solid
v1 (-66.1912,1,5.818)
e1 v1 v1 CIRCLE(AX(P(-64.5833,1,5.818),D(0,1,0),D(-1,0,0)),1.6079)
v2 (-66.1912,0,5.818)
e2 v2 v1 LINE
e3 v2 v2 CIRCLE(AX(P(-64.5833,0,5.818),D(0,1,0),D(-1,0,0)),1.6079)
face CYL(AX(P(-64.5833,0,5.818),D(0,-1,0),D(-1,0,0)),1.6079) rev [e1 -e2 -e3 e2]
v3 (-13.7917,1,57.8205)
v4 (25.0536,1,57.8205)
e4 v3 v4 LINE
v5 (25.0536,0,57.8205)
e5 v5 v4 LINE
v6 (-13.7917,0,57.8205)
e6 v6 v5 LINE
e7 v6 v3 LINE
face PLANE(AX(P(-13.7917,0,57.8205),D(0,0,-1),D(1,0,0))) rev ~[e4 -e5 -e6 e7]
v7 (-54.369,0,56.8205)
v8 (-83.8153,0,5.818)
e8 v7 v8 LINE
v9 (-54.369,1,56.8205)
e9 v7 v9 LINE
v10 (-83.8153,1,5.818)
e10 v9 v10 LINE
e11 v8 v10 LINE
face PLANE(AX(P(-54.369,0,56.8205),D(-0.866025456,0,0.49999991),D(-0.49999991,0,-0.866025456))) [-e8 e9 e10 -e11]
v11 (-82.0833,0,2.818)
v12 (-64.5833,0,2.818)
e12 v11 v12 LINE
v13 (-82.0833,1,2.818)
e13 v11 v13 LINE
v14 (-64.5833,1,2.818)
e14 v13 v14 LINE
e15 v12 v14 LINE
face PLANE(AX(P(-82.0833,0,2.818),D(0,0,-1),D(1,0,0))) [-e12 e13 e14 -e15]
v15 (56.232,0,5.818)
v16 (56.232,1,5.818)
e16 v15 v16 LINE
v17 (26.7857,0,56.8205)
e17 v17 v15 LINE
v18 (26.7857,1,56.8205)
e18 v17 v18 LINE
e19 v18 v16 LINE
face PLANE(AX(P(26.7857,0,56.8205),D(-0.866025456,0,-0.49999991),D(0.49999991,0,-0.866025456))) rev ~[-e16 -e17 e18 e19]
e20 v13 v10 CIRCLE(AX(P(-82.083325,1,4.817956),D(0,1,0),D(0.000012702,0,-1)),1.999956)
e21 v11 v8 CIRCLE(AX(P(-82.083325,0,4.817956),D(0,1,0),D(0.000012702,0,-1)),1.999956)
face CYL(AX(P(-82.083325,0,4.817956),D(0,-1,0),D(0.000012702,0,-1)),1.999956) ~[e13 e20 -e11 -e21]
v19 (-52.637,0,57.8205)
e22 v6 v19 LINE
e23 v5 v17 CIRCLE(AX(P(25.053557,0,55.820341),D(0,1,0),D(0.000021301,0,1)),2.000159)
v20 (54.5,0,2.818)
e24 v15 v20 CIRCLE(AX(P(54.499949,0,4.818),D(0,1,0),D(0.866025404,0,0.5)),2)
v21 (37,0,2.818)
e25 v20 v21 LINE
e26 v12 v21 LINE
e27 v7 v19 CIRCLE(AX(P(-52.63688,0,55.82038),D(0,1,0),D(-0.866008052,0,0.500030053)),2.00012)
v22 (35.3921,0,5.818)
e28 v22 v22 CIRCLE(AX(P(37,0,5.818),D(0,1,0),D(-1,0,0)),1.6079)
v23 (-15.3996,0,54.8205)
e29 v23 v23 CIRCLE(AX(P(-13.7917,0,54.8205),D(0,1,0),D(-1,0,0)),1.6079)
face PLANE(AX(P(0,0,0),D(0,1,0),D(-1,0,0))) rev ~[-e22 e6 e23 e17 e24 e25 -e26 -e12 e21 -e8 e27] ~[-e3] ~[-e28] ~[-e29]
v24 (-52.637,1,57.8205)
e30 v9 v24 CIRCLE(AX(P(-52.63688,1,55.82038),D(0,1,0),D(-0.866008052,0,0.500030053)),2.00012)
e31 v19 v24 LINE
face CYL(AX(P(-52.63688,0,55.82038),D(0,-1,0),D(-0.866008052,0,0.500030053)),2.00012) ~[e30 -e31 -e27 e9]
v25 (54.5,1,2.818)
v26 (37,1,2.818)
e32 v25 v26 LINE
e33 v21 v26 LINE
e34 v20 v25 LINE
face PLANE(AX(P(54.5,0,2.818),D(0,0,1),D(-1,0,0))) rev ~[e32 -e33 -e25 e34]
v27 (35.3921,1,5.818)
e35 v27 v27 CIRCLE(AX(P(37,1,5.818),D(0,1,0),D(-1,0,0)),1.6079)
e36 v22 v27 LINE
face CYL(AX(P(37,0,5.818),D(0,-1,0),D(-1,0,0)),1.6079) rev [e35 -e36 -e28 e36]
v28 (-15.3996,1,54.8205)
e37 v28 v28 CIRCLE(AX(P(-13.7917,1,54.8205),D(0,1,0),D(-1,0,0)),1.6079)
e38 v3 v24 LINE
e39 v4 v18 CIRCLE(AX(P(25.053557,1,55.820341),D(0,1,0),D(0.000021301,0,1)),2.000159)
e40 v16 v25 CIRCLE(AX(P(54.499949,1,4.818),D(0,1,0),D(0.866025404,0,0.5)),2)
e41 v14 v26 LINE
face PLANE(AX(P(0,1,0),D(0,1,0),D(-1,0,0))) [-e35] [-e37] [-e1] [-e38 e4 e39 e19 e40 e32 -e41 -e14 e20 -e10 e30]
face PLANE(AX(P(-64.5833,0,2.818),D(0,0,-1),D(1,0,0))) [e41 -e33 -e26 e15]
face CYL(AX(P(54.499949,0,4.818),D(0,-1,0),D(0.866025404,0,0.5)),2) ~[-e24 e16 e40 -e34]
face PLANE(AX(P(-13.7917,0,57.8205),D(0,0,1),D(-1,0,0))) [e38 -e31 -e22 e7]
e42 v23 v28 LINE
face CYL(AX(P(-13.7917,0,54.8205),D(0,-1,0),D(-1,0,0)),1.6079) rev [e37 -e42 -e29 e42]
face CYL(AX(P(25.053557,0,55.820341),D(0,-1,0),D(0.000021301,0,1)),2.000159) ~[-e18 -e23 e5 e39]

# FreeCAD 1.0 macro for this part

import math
import FreeCAD as App
import Part
import Sketcher

V = App.Vector
Q = App.Units.Quantity

doc = App.newDocument("Part")
body = doc.addObject("PartDesign::Body", "Body")

# Sketch on XZ plane
sketch1 = doc.addObject("Sketcher::SketchObject", "Sketch")
body.addObject(sketch1)
sketch1.AttachmentSupport = (doc.XZ_Plane, [""])
sketch1.MapMode = "FlatFace"
sketch1.addGeometry([
    Part.LineSegment(V(-52.637, 57.8205, 0), V(25.0536, 57.8205, 0)),  # 0
    Part.ArcOfCircle(Part.Circle(V(25.0536, 55.8205, 0), V(0, 0, 1), 2), math.radians(29.999295), math.radians(90)),  # 1
    Part.LineSegment(V(26.7857, 56.8205, 0), V(56.232, 5.818, 0)),  # 2
    Part.ArcOfCircle(Part.Circle(V(54.5, 4.818, 0), V(0, 0, 1), 1.999956), math.radians(-90), math.radians(30.000728)),  # 3
    Part.LineSegment(V(54.5, 2.818, 0), V(-82.0833, 2.818, 0)),  # 4
    Part.ArcOfCircle(Part.Circle(V(-82.0833, 4.818, 0), V(0, 0, 1), 2), math.radians(149.999272), math.radians(270)),  # 5
    Part.LineSegment(V(-83.8153, 5.818, 0), V(-54.369, 56.8205, 0)),  # 6
    Part.ArcOfCircle(Part.Circle(V(-52.637, 55.8205, 0), V(0, 0, 1), 1.999956), math.radians(90), math.radians(149.999272)),  # 7
    Part.Circle(V(37, 5.818, 0), V(0, 0, 1), 1.6079),  # 8
    Part.Circle(V(-64.5833, 5.818, 0), V(0, 0, 1), 1.6079),  # 9
    Part.Circle(V(-13.7917, 54.8205, 0), V(0, 0, 1), 1.6079),  # 10
], False)
sketch1.addConstraint([
    Sketcher.Constraint("Tangent", 0, 2, 1, 2),
    Sketcher.Constraint("Tangent", 1, 1, 2, 1),
    Sketcher.Constraint("Tangent", 2, 2, 3, 2),
    Sketcher.Constraint("Tangent", 3, 1, 4, 1),
    Sketcher.Constraint("Tangent", 4, 2, 5, 2),
    Sketcher.Constraint("Tangent", 5, 1, 6, 1),
    Sketcher.Constraint("Tangent", 6, 2, 7, 2),
    Sketcher.Constraint("Tangent", 7, 1, 0, 1),
    Sketcher.Constraint("Horizontal", 0),
    Sketcher.Constraint("Horizontal", 4),
    Sketcher.Constraint("Equal", 1, 3),
    Sketcher.Constraint("Equal", 3, 5),
    Sketcher.Constraint("Equal", 5, 7),
    Sketcher.Constraint("Equal", 8, 9),
    Sketcher.Constraint("Equal", 9, 10),
    Sketcher.Constraint("Horizontal", 8, 3, 9, 3),
    Sketcher.Constraint("Horizontal", 9, 3, 2, 2),
    Sketcher.Constraint("Horizontal", 2, 2, 5, 1),
    Sketcher.Constraint("Radius", 1, 2.0),
    Sketcher.Constraint("DistanceY", 10, 3, 1, 1, 2.0),
    Sketcher.Constraint("Angle", 2, Q("-60 deg")),
    Sketcher.Constraint("DistanceX", -1, 1, 8, 3, 37.0),
    Sketcher.Constraint("Diameter", 8, 3.2158),
    Sketcher.Constraint("DistanceX", -1, 1, 3, 3, 54.5),
    Sketcher.Constraint("DistanceX", 5, 3, 9, 3, 17.5),
    Sketcher.Constraint("DistanceX", 0, 1, 0, 2, 77.6906),
    Sketcher.Constraint("DistanceX", 4, 2, 4, 1, 136.5833),
    Sketcher.Constraint("DistanceY", -1, 1, 3, 3, 4.818),
    Sketcher.Constraint("DistanceX", 10, 3, -1, 1, 13.7917),
])
pad1 = doc.addObject("PartDesign::Pad", "Pad")
body.addObject(pad1)
pad1.Profile = sketch1
pad1.Length = 1
pad1.Reversed = True

doc.recompute()
